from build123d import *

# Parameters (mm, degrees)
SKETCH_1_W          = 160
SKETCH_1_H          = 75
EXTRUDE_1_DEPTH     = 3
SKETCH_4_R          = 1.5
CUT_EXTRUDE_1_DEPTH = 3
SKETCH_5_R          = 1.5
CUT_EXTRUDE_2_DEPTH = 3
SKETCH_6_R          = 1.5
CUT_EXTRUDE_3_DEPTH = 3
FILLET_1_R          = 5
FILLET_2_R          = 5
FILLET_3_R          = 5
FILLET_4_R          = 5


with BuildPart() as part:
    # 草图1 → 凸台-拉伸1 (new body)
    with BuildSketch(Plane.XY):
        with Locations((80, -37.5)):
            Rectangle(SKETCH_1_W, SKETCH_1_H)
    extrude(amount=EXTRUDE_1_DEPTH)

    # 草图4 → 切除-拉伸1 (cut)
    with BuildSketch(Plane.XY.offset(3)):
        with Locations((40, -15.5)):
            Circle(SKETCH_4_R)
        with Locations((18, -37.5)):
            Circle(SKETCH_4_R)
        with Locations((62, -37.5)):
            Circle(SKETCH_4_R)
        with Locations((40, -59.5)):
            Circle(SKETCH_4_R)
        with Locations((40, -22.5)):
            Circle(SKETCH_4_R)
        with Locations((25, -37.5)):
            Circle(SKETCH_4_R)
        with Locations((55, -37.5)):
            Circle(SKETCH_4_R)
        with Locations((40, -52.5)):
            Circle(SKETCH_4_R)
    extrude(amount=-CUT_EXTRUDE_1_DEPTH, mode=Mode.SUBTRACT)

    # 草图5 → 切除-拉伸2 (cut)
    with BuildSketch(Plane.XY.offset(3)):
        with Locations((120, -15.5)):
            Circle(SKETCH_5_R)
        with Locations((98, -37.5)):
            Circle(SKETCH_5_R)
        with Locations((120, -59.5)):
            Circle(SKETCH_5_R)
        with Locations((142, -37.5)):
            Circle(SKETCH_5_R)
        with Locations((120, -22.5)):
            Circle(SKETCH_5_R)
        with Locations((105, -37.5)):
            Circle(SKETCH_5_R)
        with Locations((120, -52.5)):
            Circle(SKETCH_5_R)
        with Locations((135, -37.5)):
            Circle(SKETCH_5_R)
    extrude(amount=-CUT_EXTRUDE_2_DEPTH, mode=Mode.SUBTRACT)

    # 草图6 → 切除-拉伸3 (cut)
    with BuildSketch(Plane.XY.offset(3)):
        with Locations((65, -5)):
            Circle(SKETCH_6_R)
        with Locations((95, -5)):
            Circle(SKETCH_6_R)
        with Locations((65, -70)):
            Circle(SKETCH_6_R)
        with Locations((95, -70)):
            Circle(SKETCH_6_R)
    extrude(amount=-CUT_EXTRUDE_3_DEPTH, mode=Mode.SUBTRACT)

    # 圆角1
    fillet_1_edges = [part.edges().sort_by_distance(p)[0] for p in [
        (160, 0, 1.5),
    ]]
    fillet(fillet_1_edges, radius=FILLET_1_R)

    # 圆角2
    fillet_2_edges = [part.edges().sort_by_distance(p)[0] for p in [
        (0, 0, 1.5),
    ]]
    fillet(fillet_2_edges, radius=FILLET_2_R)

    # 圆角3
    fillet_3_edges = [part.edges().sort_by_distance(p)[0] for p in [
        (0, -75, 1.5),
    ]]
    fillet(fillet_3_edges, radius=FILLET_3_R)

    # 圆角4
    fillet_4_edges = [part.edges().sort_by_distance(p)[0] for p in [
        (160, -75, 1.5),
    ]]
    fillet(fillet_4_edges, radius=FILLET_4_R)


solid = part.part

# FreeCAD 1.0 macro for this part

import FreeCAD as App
import Part
import Sketcher
Q = App.Units.Quantity


def edges_at(feature, points):
    """Names of the edges that pass closest to the given points."""
    edges = feature.Shape.Edges
    near = lambda p: min(range(len(edges)), key=lambda i: edges[i].distToShape(Part.Vertex(*p))[0])
    return sorted({f"Edge{near(p) + 1}" for p in points})

doc = App.newDocument("Part")
params = doc.addObject("Spreadsheet::Sheet", "Params")
for row, (alias, value) in enumerate([
    ("sketch1_width", "160 mm"),
    ("sketch1_height", "75 mm"),
    ("pad1_length", "3 mm"),
    ("sketch2_diameter", "3 mm"),
    ("pocket1_length", "3 mm"),
    ("sketch3_diameter", "3 mm"),
    ("pocket2_length", "3 mm"),
    ("sketch4_diameter", "3 mm"),
    ("pocket3_length", "3 mm"),
    ("fillet_radius", "5 mm"),
    ("fillet2_radius", "5 mm"),
    ("fillet3_radius", "5 mm"),
    ("fillet4_radius", "5 mm"),
], start=1):
    params.set(f"A{row}", alias)
    params.set(f"B{row}", "=" + value)
    params.setAlias(f"B{row}", alias)

body = doc.addObject("PartDesign::Body", "Body")

# Sketch on XY plane
sketch1 = body.newObject("Sketcher::SketchObject", "Sketch")
sketch1.AttachmentSupport = (doc.getObject("XY_Plane"), [""])
sketch1.MapMode = "FlatFace"
sketch1.addGeometry([
    Part.LineSegment(App.Vector(0, 0, 0), App.Vector(0, -75, 0)),
    Part.LineSegment(App.Vector(0, -75, 0), App.Vector(160, -75, 0)),
    Part.LineSegment(App.Vector(160, -75, 0), App.Vector(160, 0, 0)),
    Part.LineSegment(App.Vector(160, 0, 0), App.Vector(0, 0, 0)),
], False)
sketch1.addConstraint([
    Sketcher.Constraint("Coincident", 0, 2, 1, 1),
    Sketcher.Constraint("Coincident", 1, 2, 2, 1),
    Sketcher.Constraint("Coincident", 2, 2, 3, 1),
    Sketcher.Constraint("Coincident", 3, 2, 0, 1),
    Sketcher.Constraint("Vertical", 0),
    Sketcher.Constraint("Horizontal", 1),
    Sketcher.Constraint("Vertical", 2),
    Sketcher.Constraint("Horizontal", 3),
    Sketcher.Constraint("Coincident", 3, 2, -1, 1),
    Sketcher.Constraint("DistanceX", 1, 1, 1, 2, Q("160 mm")),
    Sketcher.Constraint("DistanceY", 0, 2, 0, 1, Q("75 mm")),
])
sketch1.setExpression("Constraints[9]", "Params.sketch1_width")
sketch1.setExpression("Constraints[10]", "Params.sketch1_height")
pad1 = body.newObject("PartDesign::Pad", "Pad")
pad1.Profile = sketch1
pad1.setExpression("Length", "Params.pad1_length")

# Sketch on XY plane
sketch2 = body.newObject("Sketcher::SketchObject", "Sketch001")
sketch2.AttachmentSupport = (doc.getObject("XY_Plane"), [""])
sketch2.MapMode = "FlatFace"
sketch2.AttachmentOffset = App.Placement(App.Vector(0, 0, 3), App.Rotation())
sketch2.addGeometry([
    Part.Circle(App.Vector(40, -15.5, 0), App.Vector(0, 0, 1), 1.5),  # 0
    Part.Circle(App.Vector(18, -37.5, 0), App.Vector(0, 0, 1), 1.5),  # 1
    Part.Circle(App.Vector(62, -37.5, 0), App.Vector(0, 0, 1), 1.5),  # 2
    Part.Circle(App.Vector(40, -59.5, 0), App.Vector(0, 0, 1), 1.5),  # 3
    Part.Circle(App.Vector(40, -22.5, 0), App.Vector(0, 0, 1), 1.5),  # 4
    Part.Circle(App.Vector(25, -37.5, 0), App.Vector(0, 0, 1), 1.5),  # 5
    Part.Circle(App.Vector(55, -37.5, 0), App.Vector(0, 0, 1), 1.5),  # 6
    Part.Circle(App.Vector(40, -52.5, 0), App.Vector(0, 0, 1), 1.5),  # 7
], False)
sketch2.addConstraint([
    Sketcher.Constraint("Equal", 0, 1),
    Sketcher.Constraint("Equal", 1, 2),
    Sketcher.Constraint("Equal", 2, 3),
    Sketcher.Constraint("Equal", 3, 4),
    Sketcher.Constraint("Equal", 4, 5),
    Sketcher.Constraint("Equal", 5, 6),
    Sketcher.Constraint("Equal", 6, 7),
    Sketcher.Constraint("Horizontal", 1, 3, 2, 3),
    Sketcher.Constraint("Horizontal", 2, 3, 5, 3),
    Sketcher.Constraint("Horizontal", 5, 3, 6, 3),
    Sketcher.Constraint("Vertical", 0, 3, 3, 3),
    Sketcher.Constraint("Vertical", 3, 3, 4, 3),
    Sketcher.Constraint("Vertical", 4, 3, 7, 3),
    Sketcher.Constraint("Diameter", 0, Q("3 mm")),
    Sketcher.Constraint("DistanceX", -1, 1, 0, 3, Q("40 mm")),
    Sketcher.Constraint("DistanceX", -1, 1, 1, 3, Q("18 mm")),
    Sketcher.Constraint("DistanceX", -1, 1, 2, 3, Q("62 mm")),
    Sketcher.Constraint("DistanceX", -1, 1, 5, 3, Q("25 mm")),
    Sketcher.Constraint("DistanceX", -1, 1, 6, 3, Q("55 mm")),
    Sketcher.Constraint("DistanceY", 1, 3, 0, 3, Q("22 mm")),
    Sketcher.Constraint("DistanceY", 3, 3, 1, 3, Q("22 mm")),
    Sketcher.Constraint("DistanceY", 4, 3, 0, 3, Q("7 mm")),
    Sketcher.Constraint("DistanceY", 3, 3, 7, 3, Q("7 mm")),
    Sketcher.Constraint("DistanceY", 0, 3, -1, 1, Q("15.5 mm")),
])
sketch2.setExpression("Constraints[13]", "Params.sketch2_diameter")
pocket1 = body.newObject("PartDesign::Pocket", "Pocket")
pocket1.Profile = sketch2
pocket1.setExpression("Length", "Params.pocket1_length")

# Sketch on XY plane
sketch3 = body.newObject("Sketcher::SketchObject", "Sketch002")
sketch3.AttachmentSupport = (doc.getObject("XY_Plane"), [""])
sketch3.MapMode = "FlatFace"
sketch3.AttachmentOffset = App.Placement(App.Vector(0, 0, 3), App.Rotation())
sketch3.addGeometry([
    Part.Circle(App.Vector(120, -15.5, 0), App.Vector(0, 0, 1), 1.5),  # 0
    Part.Circle(App.Vector(98, -37.5, 0), App.Vector(0, 0, 1), 1.5),  # 1
    Part.Circle(App.Vector(120, -59.5, 0), App.Vector(0, 0, 1), 1.5),  # 2
    Part.Circle(App.Vector(142, -37.5, 0), App.Vector(0, 0, 1), 1.5),  # 3
    Part.Circle(App.Vector(120, -22.5, 0), App.Vector(0, 0, 1), 1.5),  # 4
    Part.Circle(App.Vector(105, -37.5, 0), App.Vector(0, 0, 1), 1.5),  # 5
    Part.Circle(App.Vector(120, -52.5, 0), App.Vector(0, 0, 1), 1.5),  # 6
    Part.Circle(App.Vector(135, -37.5, 0), App.Vector(0, 0, 1), 1.5),  # 7
], False)
sketch3.addConstraint([
    Sketcher.Constraint("Equal", 0, 1),
    Sketcher.Constraint("Equal", 1, 2),
    Sketcher.Constraint("Equal", 2, 3),
    Sketcher.Constraint("Equal", 3, 4),
    Sketcher.Constraint("Equal", 4, 5),
    Sketcher.Constraint("Equal", 5, 6),
    Sketcher.Constraint("Equal", 6, 7),
    Sketcher.Constraint("Horizontal", 1, 3, 3, 3),
    Sketcher.Constraint("Horizontal", 3, 3, 5, 3),
    Sketcher.Constraint("Horizontal", 5, 3, 7, 3),
    Sketcher.Constraint("Vertical", 0, 3, 2, 3),
    Sketcher.Constraint("Vertical", 2, 3, 4, 3),
    Sketcher.Constraint("Vertical", 4, 3, 6, 3),
    Sketcher.Constraint("Diameter", 0, Q("3 mm")),
    Sketcher.Constraint("DistanceX", -1, 1, 0, 3, Q("120 mm")),
    Sketcher.Constraint("DistanceX", -1, 1, 1, 3, Q("98 mm")),
    Sketcher.Constraint("DistanceX", -1, 1, 3, 3, Q("142 mm")),
    Sketcher.Constraint("DistanceX", -1, 1, 5, 3, Q("105 mm")),
    Sketcher.Constraint("DistanceX", -1, 1, 7, 3, Q("135 mm")),
    Sketcher.Constraint("DistanceY", 1, 3, 0, 3, Q("22 mm")),
    Sketcher.Constraint("DistanceY", 2, 3, 1, 3, Q("22 mm")),
    Sketcher.Constraint("DistanceY", 4, 3, 0, 3, Q("7 mm")),
    Sketcher.Constraint("DistanceY", 2, 3, 6, 3, Q("7 mm")),
    Sketcher.Constraint("DistanceY", 0, 3, -1, 1, Q("15.5 mm")),
])
sketch3.setExpression("Constraints[13]", "Params.sketch3_diameter")
pocket2 = body.newObject("PartDesign::Pocket", "Pocket001")
pocket2.Profile = sketch3
pocket2.setExpression("Length", "Params.pocket2_length")

# Sketch on XY plane
sketch4 = body.newObject("Sketcher::SketchObject", "Sketch003")
sketch4.AttachmentSupport = (doc.getObject("XY_Plane"), [""])
sketch4.MapMode = "FlatFace"
sketch4.AttachmentOffset = App.Placement(App.Vector(0, 0, 3), App.Rotation())
sketch4.addGeometry([
    Part.Circle(App.Vector(65, -5, 0), App.Vector(0, 0, 1), 1.5),
    Part.Circle(App.Vector(95, -5, 0), App.Vector(0, 0, 1), 1.5),
    Part.Circle(App.Vector(65, -70, 0), App.Vector(0, 0, 1), 1.5),
    Part.Circle(App.Vector(95, -70, 0), App.Vector(0, 0, 1), 1.5),
], False)
sketch4.addConstraint([
    Sketcher.Constraint("Equal", 0, 1),
    Sketcher.Constraint("Equal", 1, 2),
    Sketcher.Constraint("Equal", 2, 3),
    Sketcher.Constraint("Horizontal", 0, 3, 1, 3),
    Sketcher.Constraint("Horizontal", 2, 3, 3, 3),
    Sketcher.Constraint("Vertical", 0, 3, 2, 3),
    Sketcher.Constraint("Vertical", 1, 3, 3, 3),
    Sketcher.Constraint("Diameter", 0, Q("3 mm")),
    Sketcher.Constraint("DistanceX", -1, 1, 0, 3, Q("65 mm")),
    Sketcher.Constraint("DistanceY", 0, 3, -1, 1, Q("5 mm")),
    Sketcher.Constraint("DistanceX", -1, 1, 1, 3, Q("95 mm")),
    Sketcher.Constraint("DistanceY", 2, 3, -1, 1, Q("70 mm")),
])
sketch4.setExpression("Constraints[7]", "Params.sketch4_diameter")
pocket3 = body.newObject("PartDesign::Pocket", "Pocket002")
pocket3.Profile = sketch4
pocket3.setExpression("Length", "Params.pocket3_length")
doc.recompute()

fillet = body.newObject("PartDesign::Fillet", "Fillet")
fillet.Base = (pocket3, edges_at(pocket3, [(160, 0, 1.5)]))
fillet.setExpression("Radius", "Params.fillet_radius")
doc.recompute()

fillet2 = body.newObject("PartDesign::Fillet", "Fillet001")
fillet2.Base = (fillet, edges_at(fillet, [(0, 0, 1.5)]))
fillet2.setExpression("Radius", "Params.fillet2_radius")
doc.recompute()

fillet3 = body.newObject("PartDesign::Fillet", "Fillet002")
fillet3.Base = (fillet2, edges_at(fillet2, [(0, -75, 1.5)]))
fillet3.setExpression("Radius", "Params.fillet3_radius")
doc.recompute()

fillet4 = body.newObject("PartDesign::Fillet", "Fillet003")
fillet4.Base = (fillet3, edges_at(fillet3, [(160, -75, 1.5)]))
fillet4.setExpression("Radius", "Params.fillet4_radius")

doc.recompute()
